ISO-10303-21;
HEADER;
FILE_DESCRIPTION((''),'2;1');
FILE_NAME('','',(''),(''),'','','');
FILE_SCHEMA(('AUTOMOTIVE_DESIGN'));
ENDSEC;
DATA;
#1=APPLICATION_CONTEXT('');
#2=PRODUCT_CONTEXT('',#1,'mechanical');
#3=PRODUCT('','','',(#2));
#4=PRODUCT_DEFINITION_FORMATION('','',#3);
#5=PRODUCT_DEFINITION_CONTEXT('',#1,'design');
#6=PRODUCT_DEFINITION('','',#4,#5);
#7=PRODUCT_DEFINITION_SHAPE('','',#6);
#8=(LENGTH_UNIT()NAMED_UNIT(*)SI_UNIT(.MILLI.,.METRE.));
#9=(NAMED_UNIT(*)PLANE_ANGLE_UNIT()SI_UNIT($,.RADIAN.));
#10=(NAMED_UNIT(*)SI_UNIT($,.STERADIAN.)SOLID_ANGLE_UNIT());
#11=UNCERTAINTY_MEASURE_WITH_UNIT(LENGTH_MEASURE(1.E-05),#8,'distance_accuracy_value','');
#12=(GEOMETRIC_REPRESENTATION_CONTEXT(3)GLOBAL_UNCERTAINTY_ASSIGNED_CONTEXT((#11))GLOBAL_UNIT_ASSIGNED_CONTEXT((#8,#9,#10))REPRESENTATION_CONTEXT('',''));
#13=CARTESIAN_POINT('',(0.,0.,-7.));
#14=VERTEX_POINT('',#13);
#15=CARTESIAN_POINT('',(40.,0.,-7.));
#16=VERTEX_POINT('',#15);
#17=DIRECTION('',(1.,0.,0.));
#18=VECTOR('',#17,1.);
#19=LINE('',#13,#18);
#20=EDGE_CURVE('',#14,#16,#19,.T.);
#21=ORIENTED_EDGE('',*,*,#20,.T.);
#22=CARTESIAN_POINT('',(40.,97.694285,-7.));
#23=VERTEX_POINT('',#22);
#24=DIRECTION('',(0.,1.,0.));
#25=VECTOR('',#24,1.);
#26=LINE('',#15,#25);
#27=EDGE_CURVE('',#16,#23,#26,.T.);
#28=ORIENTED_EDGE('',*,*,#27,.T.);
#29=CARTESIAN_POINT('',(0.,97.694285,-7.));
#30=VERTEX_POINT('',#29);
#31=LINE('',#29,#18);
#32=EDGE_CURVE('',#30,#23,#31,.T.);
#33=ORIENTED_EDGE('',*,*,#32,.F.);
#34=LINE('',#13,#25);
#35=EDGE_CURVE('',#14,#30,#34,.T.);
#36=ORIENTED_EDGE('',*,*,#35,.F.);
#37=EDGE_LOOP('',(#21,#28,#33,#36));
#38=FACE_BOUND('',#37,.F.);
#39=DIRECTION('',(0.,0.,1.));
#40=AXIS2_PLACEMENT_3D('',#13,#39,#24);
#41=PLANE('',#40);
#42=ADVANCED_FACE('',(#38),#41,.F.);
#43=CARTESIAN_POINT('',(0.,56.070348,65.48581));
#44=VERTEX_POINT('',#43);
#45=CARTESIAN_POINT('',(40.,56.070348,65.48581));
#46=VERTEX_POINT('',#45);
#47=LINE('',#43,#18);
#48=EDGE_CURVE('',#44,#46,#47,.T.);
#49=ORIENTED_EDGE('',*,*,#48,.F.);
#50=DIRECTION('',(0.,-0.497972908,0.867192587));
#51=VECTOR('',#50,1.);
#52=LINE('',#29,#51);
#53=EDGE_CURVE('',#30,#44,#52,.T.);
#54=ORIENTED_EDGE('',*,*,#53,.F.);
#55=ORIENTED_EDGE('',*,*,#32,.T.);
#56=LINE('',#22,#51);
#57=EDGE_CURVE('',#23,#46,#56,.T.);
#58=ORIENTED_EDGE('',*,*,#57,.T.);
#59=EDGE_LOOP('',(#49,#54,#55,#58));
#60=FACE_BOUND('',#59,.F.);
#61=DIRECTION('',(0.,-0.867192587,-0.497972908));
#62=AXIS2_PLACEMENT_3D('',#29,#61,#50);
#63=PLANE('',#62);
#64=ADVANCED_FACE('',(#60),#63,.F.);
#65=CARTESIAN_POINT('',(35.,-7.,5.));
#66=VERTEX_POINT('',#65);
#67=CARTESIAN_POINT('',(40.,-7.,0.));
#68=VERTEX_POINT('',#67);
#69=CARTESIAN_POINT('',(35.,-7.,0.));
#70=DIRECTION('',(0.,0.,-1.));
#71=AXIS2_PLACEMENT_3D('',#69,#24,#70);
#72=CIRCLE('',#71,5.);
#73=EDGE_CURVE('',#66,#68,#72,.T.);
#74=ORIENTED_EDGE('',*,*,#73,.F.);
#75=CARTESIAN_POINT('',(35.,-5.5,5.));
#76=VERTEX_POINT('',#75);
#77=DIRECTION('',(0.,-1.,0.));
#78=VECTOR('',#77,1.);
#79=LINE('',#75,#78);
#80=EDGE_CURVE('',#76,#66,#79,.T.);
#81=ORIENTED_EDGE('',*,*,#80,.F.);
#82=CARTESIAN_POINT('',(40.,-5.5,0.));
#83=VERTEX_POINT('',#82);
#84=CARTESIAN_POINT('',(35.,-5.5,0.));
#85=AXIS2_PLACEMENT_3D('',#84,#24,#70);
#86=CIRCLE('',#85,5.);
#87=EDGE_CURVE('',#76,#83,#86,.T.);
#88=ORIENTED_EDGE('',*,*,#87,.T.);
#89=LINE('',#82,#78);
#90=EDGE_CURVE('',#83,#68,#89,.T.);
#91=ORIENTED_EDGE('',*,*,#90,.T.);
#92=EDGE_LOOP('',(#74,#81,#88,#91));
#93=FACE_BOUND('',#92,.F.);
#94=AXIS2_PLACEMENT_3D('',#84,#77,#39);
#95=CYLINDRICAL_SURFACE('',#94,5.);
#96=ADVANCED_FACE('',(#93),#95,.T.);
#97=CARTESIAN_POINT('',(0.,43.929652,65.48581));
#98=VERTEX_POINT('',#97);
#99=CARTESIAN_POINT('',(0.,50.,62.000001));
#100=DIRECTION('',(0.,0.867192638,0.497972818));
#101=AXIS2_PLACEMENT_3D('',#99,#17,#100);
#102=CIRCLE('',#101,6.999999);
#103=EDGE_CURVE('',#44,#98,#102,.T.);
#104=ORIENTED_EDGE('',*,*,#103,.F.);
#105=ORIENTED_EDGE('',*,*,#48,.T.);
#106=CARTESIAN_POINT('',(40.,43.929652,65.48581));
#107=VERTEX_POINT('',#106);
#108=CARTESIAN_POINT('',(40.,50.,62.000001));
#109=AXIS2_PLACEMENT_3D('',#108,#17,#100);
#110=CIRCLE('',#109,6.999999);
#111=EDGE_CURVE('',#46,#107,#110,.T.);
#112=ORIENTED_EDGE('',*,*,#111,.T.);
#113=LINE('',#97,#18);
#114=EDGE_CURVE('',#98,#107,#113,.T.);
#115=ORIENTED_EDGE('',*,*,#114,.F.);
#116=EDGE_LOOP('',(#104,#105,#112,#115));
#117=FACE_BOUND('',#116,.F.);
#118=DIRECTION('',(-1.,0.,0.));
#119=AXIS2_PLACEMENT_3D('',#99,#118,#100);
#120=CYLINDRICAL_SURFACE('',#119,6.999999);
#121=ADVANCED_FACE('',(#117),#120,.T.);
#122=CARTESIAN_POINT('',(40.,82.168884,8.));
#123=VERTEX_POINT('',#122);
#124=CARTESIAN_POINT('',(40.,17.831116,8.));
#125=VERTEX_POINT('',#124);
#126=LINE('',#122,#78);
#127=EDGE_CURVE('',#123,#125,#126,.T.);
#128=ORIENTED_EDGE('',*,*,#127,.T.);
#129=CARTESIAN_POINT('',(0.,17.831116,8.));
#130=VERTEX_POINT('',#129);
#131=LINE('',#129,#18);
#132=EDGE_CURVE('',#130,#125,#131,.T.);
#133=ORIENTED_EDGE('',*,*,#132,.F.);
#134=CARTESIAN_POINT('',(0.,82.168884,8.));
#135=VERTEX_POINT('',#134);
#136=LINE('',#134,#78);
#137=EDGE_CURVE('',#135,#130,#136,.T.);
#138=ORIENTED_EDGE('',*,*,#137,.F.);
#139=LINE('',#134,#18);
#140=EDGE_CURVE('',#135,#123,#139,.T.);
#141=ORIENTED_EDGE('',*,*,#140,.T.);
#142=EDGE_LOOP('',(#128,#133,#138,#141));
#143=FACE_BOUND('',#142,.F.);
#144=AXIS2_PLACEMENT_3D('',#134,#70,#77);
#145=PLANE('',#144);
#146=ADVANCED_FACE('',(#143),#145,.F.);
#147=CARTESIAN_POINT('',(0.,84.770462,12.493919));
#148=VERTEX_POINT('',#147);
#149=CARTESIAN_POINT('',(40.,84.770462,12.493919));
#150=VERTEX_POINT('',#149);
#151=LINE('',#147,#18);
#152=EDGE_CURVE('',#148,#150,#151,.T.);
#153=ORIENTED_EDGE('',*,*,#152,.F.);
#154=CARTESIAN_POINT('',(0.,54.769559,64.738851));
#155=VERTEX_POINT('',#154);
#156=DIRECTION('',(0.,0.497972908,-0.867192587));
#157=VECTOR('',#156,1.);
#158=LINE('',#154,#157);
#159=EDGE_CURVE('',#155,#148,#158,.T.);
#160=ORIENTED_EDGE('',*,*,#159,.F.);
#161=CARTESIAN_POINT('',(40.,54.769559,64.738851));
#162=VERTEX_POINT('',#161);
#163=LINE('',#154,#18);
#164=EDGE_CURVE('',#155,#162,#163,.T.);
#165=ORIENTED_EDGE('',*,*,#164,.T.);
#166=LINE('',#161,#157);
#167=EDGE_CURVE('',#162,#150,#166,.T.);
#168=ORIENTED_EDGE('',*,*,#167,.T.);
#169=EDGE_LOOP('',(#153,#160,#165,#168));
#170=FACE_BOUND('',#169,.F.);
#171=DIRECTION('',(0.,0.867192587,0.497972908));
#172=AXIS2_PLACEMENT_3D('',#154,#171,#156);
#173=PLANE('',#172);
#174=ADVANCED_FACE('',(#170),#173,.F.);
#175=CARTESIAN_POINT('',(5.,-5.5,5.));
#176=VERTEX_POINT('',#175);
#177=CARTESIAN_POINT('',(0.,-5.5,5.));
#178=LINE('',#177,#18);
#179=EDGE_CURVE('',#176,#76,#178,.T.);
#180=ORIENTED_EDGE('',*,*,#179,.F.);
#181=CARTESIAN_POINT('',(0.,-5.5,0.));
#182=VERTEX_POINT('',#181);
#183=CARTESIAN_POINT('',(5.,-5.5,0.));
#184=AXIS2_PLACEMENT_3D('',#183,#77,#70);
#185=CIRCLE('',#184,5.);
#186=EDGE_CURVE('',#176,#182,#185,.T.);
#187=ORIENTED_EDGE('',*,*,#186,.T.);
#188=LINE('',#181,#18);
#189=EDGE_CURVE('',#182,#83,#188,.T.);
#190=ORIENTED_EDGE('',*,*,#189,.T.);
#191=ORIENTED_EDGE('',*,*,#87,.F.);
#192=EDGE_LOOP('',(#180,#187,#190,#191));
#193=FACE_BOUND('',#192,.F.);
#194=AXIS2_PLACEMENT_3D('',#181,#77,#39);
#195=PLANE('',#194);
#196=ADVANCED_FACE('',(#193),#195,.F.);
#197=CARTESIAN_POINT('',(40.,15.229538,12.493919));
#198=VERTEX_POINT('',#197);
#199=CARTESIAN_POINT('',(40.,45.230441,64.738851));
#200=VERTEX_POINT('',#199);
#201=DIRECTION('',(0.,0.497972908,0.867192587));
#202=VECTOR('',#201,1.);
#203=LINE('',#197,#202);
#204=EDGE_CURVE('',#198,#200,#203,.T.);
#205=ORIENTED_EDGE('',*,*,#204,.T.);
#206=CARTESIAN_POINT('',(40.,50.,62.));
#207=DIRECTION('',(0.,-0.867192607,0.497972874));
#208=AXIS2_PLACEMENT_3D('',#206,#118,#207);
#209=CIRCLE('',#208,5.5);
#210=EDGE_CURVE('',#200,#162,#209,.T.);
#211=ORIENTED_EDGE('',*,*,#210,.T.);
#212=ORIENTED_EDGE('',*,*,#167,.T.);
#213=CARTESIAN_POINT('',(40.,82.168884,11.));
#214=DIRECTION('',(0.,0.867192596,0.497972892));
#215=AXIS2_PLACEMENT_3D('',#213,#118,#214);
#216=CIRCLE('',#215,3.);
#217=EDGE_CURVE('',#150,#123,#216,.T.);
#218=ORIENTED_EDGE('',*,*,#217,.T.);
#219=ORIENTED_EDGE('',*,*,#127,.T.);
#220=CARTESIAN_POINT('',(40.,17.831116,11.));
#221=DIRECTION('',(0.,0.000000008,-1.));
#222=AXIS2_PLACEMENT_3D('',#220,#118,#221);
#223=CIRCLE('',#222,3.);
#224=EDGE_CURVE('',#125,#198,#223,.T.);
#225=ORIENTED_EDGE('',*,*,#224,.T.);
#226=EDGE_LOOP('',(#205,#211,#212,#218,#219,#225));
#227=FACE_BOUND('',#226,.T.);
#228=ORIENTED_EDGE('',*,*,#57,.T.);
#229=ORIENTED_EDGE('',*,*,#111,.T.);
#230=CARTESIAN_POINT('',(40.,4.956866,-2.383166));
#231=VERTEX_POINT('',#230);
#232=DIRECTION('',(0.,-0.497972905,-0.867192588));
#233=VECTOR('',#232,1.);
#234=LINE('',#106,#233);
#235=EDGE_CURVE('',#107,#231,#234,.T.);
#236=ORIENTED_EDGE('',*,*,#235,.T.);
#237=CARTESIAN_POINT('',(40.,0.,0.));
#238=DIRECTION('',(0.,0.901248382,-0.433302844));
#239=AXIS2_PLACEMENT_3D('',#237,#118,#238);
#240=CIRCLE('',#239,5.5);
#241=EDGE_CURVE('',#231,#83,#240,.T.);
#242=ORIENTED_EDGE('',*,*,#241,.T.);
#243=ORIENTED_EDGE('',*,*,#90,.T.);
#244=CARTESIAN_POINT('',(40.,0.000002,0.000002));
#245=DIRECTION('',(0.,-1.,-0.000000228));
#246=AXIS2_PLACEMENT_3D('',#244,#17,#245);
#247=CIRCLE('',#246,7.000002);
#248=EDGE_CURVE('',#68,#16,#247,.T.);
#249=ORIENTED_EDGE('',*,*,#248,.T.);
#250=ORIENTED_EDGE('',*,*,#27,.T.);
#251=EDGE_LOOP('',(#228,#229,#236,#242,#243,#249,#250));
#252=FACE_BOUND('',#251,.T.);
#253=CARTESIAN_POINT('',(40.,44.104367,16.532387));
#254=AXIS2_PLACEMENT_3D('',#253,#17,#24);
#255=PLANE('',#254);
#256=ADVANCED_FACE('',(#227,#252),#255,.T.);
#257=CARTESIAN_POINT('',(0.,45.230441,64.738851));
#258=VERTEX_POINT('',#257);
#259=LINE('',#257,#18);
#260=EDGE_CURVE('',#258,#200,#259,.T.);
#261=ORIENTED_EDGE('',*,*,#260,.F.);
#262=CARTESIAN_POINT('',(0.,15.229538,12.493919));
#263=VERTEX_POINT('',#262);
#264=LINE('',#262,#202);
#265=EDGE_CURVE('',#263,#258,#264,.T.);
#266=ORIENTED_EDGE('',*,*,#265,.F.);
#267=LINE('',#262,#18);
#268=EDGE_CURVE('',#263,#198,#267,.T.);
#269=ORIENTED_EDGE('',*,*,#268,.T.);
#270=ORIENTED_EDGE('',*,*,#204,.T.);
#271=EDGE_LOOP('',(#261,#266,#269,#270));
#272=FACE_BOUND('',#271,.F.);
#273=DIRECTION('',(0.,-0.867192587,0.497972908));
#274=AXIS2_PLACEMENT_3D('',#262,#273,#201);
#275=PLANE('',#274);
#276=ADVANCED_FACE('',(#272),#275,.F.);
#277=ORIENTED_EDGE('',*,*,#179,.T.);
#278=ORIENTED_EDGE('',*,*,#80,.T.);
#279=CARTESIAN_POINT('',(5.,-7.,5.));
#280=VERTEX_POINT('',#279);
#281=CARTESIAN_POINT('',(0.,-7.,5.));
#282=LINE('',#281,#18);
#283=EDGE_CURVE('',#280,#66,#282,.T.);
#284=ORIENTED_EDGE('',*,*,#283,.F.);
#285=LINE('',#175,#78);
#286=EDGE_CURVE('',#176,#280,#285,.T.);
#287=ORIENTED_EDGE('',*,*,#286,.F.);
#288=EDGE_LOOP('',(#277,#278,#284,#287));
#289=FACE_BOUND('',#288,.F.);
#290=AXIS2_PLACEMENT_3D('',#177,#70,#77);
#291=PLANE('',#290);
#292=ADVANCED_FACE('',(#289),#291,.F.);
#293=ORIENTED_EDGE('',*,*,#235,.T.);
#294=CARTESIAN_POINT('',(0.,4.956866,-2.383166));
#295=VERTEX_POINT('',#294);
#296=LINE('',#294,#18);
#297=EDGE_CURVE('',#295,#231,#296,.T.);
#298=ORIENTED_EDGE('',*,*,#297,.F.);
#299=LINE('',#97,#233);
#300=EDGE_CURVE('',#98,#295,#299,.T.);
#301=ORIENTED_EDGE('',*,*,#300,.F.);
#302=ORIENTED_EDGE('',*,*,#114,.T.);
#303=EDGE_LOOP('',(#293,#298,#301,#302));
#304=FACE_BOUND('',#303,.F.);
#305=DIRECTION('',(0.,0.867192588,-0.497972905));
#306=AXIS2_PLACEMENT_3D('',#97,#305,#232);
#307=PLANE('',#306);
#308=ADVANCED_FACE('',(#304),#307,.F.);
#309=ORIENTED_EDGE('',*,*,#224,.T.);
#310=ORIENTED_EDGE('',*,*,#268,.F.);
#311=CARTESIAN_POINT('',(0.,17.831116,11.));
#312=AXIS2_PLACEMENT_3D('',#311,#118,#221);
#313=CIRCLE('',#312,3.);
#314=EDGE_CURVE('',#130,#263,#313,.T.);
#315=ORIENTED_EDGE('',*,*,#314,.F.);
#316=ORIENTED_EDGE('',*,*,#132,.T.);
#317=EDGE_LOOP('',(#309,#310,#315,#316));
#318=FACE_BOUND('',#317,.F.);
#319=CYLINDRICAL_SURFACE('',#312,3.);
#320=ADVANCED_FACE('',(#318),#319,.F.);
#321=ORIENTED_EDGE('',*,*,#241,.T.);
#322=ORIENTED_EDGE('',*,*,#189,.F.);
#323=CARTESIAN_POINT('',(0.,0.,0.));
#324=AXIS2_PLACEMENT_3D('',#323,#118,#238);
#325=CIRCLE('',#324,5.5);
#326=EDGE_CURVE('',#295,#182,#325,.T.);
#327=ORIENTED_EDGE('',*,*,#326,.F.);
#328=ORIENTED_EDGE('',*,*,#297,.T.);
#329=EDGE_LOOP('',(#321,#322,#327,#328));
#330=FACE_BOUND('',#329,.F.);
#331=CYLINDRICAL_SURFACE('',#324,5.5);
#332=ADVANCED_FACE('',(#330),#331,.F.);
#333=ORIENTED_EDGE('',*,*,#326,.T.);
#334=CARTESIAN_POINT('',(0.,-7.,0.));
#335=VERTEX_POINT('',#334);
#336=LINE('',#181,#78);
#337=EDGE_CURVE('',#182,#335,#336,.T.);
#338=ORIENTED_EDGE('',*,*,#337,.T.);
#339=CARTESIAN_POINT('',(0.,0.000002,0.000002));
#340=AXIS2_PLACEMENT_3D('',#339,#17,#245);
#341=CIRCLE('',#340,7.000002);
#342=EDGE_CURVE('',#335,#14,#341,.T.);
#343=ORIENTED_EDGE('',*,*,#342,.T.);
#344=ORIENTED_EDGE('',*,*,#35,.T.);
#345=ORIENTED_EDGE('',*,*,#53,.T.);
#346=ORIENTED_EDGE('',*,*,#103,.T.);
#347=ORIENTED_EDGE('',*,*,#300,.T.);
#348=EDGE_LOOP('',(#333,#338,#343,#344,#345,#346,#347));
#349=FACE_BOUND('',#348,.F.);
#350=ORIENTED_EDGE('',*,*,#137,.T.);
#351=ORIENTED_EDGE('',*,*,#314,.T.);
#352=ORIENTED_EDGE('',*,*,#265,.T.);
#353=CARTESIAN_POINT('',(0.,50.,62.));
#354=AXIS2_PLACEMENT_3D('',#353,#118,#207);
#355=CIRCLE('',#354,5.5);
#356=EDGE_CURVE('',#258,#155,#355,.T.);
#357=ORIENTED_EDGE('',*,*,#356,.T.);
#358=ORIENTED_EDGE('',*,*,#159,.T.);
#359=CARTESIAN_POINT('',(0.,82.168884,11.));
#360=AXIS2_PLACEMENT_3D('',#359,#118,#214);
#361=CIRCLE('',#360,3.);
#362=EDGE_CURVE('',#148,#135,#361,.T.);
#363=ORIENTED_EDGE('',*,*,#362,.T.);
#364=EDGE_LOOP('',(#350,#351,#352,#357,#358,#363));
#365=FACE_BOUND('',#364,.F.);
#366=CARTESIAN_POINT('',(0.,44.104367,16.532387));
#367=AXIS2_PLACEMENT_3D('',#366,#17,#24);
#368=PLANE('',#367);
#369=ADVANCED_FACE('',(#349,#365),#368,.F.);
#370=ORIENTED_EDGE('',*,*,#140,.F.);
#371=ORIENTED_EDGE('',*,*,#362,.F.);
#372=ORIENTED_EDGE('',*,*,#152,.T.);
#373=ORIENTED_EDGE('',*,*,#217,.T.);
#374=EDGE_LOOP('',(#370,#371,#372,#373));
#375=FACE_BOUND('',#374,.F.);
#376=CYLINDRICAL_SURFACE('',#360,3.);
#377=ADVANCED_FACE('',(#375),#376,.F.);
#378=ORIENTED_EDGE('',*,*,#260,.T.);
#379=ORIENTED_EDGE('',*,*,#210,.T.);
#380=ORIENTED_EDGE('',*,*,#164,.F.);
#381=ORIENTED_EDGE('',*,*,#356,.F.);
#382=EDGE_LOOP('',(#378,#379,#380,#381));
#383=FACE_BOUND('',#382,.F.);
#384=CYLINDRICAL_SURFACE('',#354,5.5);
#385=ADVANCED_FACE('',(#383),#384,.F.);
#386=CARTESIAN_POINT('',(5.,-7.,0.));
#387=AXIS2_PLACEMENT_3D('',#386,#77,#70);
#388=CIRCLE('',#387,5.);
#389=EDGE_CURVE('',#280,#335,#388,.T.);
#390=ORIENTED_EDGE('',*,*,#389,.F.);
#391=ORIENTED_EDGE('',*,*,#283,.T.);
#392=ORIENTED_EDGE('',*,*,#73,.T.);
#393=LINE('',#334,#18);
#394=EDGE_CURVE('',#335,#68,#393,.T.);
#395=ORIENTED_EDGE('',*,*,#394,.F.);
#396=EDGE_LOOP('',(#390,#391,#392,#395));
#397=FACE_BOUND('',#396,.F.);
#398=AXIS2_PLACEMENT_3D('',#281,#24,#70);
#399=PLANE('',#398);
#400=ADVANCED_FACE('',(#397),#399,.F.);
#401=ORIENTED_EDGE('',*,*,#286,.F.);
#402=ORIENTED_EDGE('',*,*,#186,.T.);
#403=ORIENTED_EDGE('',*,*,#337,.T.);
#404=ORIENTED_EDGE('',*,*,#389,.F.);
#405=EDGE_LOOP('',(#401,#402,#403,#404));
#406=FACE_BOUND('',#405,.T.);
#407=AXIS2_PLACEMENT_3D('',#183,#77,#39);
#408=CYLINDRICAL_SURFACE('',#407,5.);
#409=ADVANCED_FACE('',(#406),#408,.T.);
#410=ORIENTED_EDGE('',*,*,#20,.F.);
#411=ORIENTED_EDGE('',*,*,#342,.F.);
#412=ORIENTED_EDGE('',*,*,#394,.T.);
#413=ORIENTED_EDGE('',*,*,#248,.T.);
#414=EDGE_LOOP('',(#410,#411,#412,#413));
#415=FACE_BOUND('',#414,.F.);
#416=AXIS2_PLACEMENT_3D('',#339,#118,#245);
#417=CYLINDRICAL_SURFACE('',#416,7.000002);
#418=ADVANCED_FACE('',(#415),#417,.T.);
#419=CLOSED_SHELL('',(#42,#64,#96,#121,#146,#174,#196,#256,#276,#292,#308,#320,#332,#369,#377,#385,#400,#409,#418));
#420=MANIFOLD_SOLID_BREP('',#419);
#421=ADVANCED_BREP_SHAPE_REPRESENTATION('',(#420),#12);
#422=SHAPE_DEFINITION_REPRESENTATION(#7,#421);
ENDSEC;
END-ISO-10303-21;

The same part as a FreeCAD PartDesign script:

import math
import FreeCAD as App
import Part
import Sketcher

V = App.Vector


def edges_at(feature, points):
    """Names of the edges that pass closest to the given points."""
    edges = feature.Shape.Edges
    near = lambda p: min(range(len(edges)), key=lambda i: edges[i].distToShape(Part.Vertex(*p))[0])
    return sorted({f"Edge{near(p) + 1}" for p in points})

doc = App.newDocument("Part")
body = doc.addObject("PartDesign::Body", "Body")

sketch1 = body.newObject("Sketcher::SketchObject", "Sketch")
sketch1.AttachmentSupport = (doc.getObject("YZ_Plane"), [""])
sketch1.MapMode = "FlatFace"
sketch1.addGeometry(Part.LineSegment(V(-7, 5, 0), V(-7, 0, 0)), False)
sketch1.addGeometry(Part.ArcOfCircle(Part.Circle(V(0.000002, 0.000002, 0), V(0, 0, 1), 7.000002), math.radians(-179.999987), math.radians(-90.000013)), False)
sketch1.addGeometry(Part.LineSegment(V(0, -7, 0), V(97.694285, -7, 0)), False)
sketch1.addGeometry(Part.LineSegment(V(97.694285, -7, 0), V(56.070348, 65.48581, 0)), False)
sketch1.addGeometry(Part.ArcOfCircle(Part.Circle(V(50, 62.000001, 0), V(0, 0, 1), 6.999999), math.radians(29.865973), math.radians(150.134027)), False)
sketch1.addGeometry(Part.LineSegment(V(43.929652, 65.48581, 0), V(4.956866, -2.383166, 0)), False)
sketch1.addGeometry(Part.ArcOfCircle(Part.Circle(V(0, 0, 0), V(0, 0, 1), 5.5), math.radians(179.999996), math.radians(334.32265)), False)
sketch1.addGeometry(Part.LineSegment(V(-5.5, 0, 0), V(-5.5, 5, 0)), False)
sketch1.addGeometry(Part.LineSegment(V(-5.5, 5, 0), V(-7, 5, 0)), False)
sketch1.addGeometry(Part.LineSegment(V(15.229538, 12.493919, 0), V(45.230441, 64.738851, 0)), False)
sketch1.addGeometry(Part.ArcOfCircle(Part.Circle(V(50, 62, 0), V(0, 0, 1), 5.5), math.radians(29.865977), math.radians(150.134023)), False)
sketch1.addGeometry(Part.LineSegment(V(54.769559, 64.738851, 0), V(84.770462, 12.493919, 0)), False)
sketch1.addGeometry(Part.ArcOfCircle(Part.Circle(V(82.168884, 11, 0), V(0, 0, 1), 3), math.radians(-90), math.radians(29.865978)), False)
sketch1.addGeometry(Part.LineSegment(V(82.168884, 8, 0), V(17.831116, 8, 0)), False)
sketch1.addGeometry(Part.ArcOfCircle(Part.Circle(V(17.831116, 11, 0), V(0, 0, 1), 3), math.radians(150.134022), math.radians(270)), False)
sketch1.addConstraint(Sketcher.Constraint("Tangent", 0, 2, 1, 1))
sketch1.addConstraint(Sketcher.Constraint("Tangent", 1, 2, 2, 1))
sketch1.addConstraint(Sketcher.Constraint("Coincident", 2, 2, 3, 1))
sketch1.addConstraint(Sketcher.Constraint("Tangent", 3, 2, 4, 1))
sketch1.addConstraint(Sketcher.Constraint("Tangent", 4, 2, 5, 1))
sketch1.addConstraint(Sketcher.Constraint("Coincident", 5, 2, 6, 2))
sketch1.addConstraint(Sketcher.Constraint("Tangent", 6, 1, 7, 1))
sketch1.addConstraint(Sketcher.Constraint("Coincident", 7, 2, 8, 1))
sketch1.addConstraint(Sketcher.Constraint("Coincident", 8, 2, 0, 1))
sketch1.addConstraint(Sketcher.Constraint("Tangent", 9, 2, 10, 2))
sketch1.addConstraint(Sketcher.Constraint("Tangent", 10, 1, 11, 1))
sketch1.addConstraint(Sketcher.Constraint("Tangent", 11, 2, 12, 2))
sketch1.addConstraint(Sketcher.Constraint("Tangent", 12, 1, 13, 1))
sketch1.addConstraint(Sketcher.Constraint("Tangent", 13, 2, 14, 2))
sketch1.addConstraint(Sketcher.Constraint("Tangent", 14, 1, 9, 1))
sketch1.addConstraint(Sketcher.Constraint("Vertical", 0))
sketch1.addConstraint(Sketcher.Constraint("Horizontal", 2))
sketch1.addConstraint(Sketcher.Constraint("Vertical", 7))
sketch1.addConstraint(Sketcher.Constraint("Horizontal", 8))
sketch1.addConstraint(Sketcher.Constraint("Horizontal", 13))
sketch1.addConstraint(Sketcher.Constraint("Coincident", 1, 3, -1, 1))
sketch1.addConstraint(Sketcher.Constraint("Coincident", 6, 3, -1, 1))
sketch1.addConstraint(Sketcher.Constraint("Coincident", 10, 3, 4, 3))
sketch1.addConstraint(Sketcher.Constraint("Equal", 6, 10))
sketch1.addConstraint(Sketcher.Constraint("Equal", 12, 14))
sketch1.addConstraint(Sketcher.Constraint("Parallel", 5, 9))
sketch1.addConstraint(Sketcher.Constraint("Parallel", 3, 11))
sketch1.addConstraint(Sketcher.Constraint("Horizontal", 3, 2, 4, 2))
sketch1.addConstraint(Sketcher.Constraint("Radius", 1, 7.000002))
sketch1.addConstraint(Sketcher.Constraint("Radius", 4, 6.999999))
sketch1.addConstraint(Sketcher.Constraint("Radius", 12, 3.0))
sketch1.addConstraint(Sketcher.Constraint("Radius", 6, 5.5))
sketch1.addConstraint(Sketcher.Constraint("DistanceY", 0, 2, 0, 1, 5.0))
sketch1.addConstraint(Sketcher.Constraint("DistanceX", -1, 1, 4, 3, 50.0))
sketch1.addConstraint(Sketcher.Constraint("DistanceY", -1, 1, 4, 3, 62.000001))
sketch1.addConstraint(Sketcher.Constraint("DistanceY", -1, 1, 12, 3, 11.0))
sketch1.addConstraint(Sketcher.Constraint("DistanceX", 13, 2, 13, 1, 64.337768))
pad1 = body.newObject("PartDesign::Pad", "Pad")
pad1.Profile = sketch1
pad1.Length = 40
doc.recompute()

fillet = body.newObject("PartDesign::Fillet", "Fillet")
fillet.Base = (pad1, edges_at(pad1, [(40, -6.25, 5), (0, -6.25, 5)]))
fillet.Radius = 5

doc.recompute()
